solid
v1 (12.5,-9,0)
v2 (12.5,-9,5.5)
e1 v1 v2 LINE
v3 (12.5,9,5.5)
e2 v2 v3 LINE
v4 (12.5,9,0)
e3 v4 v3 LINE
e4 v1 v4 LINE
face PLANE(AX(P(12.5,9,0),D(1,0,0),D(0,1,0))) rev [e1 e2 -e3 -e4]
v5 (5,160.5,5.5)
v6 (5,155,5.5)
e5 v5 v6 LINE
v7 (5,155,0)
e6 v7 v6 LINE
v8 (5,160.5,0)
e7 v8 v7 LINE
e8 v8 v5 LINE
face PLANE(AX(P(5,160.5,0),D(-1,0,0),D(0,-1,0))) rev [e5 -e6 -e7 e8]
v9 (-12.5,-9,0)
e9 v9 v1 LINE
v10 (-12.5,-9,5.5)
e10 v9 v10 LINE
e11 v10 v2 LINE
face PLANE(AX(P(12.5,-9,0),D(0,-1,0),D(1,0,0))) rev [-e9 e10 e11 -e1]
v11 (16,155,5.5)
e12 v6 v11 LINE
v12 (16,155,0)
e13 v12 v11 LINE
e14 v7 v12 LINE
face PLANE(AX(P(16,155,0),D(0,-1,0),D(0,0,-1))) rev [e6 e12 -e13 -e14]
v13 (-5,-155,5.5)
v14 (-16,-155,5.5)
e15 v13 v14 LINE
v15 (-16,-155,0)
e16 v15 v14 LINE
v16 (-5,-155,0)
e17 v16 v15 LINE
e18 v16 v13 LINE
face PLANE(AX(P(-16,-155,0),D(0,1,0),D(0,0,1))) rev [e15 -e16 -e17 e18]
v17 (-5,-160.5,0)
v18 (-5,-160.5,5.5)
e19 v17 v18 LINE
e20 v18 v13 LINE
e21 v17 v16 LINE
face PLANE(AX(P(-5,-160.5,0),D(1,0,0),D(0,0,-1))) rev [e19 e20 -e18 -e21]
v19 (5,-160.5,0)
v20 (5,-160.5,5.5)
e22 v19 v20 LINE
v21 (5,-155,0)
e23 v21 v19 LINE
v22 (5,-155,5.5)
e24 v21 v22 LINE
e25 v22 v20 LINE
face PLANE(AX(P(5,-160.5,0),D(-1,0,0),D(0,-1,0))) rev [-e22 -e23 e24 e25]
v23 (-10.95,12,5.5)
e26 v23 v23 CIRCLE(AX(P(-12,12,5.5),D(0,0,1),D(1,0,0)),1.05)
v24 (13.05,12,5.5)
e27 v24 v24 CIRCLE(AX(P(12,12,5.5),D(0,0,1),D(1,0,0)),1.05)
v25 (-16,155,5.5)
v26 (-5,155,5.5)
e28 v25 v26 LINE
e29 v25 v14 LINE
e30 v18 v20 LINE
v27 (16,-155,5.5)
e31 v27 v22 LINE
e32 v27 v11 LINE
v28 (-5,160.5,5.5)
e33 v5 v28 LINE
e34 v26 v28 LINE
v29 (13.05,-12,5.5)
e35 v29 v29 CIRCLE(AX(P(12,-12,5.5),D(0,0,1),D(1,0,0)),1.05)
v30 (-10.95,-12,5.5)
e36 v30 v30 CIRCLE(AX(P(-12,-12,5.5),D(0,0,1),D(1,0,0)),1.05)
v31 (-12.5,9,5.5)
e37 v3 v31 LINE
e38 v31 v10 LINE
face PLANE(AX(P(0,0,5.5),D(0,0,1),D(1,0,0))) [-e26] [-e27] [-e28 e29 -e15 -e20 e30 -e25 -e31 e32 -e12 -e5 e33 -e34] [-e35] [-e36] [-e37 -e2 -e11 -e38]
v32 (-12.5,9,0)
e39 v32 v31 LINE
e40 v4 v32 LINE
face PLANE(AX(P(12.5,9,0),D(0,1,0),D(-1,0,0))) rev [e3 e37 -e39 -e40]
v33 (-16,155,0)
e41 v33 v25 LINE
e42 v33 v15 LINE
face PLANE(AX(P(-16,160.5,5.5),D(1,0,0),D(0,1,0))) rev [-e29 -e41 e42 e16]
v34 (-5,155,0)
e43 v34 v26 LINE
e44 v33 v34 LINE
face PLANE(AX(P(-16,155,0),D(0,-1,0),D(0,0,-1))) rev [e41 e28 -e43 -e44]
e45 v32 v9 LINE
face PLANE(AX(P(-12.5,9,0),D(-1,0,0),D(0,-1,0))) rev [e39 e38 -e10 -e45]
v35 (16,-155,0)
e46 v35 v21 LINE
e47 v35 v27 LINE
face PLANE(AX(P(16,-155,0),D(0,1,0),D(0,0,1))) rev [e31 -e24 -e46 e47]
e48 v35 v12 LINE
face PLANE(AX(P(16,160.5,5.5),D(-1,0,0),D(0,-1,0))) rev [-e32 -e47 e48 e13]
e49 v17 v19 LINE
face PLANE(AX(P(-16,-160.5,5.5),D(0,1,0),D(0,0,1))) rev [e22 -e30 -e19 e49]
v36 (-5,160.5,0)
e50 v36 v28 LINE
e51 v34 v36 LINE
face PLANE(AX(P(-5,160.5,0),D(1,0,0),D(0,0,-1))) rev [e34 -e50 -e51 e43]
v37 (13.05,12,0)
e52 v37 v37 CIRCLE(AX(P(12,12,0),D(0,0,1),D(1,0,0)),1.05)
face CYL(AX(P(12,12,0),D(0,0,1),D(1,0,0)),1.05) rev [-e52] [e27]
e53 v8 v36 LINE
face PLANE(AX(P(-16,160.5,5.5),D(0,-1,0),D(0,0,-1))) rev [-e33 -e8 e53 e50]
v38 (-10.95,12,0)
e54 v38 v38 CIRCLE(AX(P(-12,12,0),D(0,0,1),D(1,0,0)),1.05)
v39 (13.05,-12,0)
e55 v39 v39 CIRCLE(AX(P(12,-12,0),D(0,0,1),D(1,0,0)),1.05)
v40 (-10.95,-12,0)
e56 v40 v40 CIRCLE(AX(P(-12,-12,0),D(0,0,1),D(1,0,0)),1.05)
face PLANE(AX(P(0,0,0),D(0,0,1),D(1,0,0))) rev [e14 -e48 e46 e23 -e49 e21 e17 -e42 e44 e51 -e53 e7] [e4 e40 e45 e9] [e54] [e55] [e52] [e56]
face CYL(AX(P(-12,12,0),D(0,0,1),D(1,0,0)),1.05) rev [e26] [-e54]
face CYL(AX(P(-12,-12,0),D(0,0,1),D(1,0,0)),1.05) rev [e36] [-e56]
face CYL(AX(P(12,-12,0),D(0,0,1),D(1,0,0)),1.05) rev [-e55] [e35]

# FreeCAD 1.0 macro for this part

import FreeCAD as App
import Part
import Sketcher

V = App.Vector

doc = App.newDocument("Part")
body = doc.addObject("PartDesign::Body", "Body")

sketch1 = body.newObject("Sketcher::SketchObject", "Sketch")
sketch1.AttachmentSupport = (doc.getObject("XY_Plane"), [""])
sketch1.MapMode = "FlatFace"
sketch1.addGeometry([
    Part.LineSegment(V(-16, 160.5, 0), V(-16, -160.5, 0)),
    Part.LineSegment(V(-16, -160.5, 0), V(16, -160.5, 0)),
    Part.LineSegment(V(16, -160.5, 0), V(16, 160.5, 0)),
    Part.LineSegment(V(16, 160.5, 0), V(-16, 160.5, 0)),
], False)
sketch1.addConstraint([
    Sketcher.Constraint("Coincident", 0, 2, 1, 1),
    Sketcher.Constraint("Coincident", 1, 2, 2, 1),
    Sketcher.Constraint("Coincident", 2, 2, 3, 1),
    Sketcher.Constraint("Coincident", 3, 2, 0, 1),
    Sketcher.Constraint("Vertical", 0),
    Sketcher.Constraint("Horizontal", 1),
    Sketcher.Constraint("Vertical", 2),
    Sketcher.Constraint("Horizontal", 3),
    Sketcher.Constraint("Symmetric", 0, 2, 2, 2, -1, 1),
    Sketcher.Constraint("DistanceX", 1, 1, 1, 2, 32.0),
    Sketcher.Constraint("DistanceY", 0, 2, 0, 1, 321.0),
])
pad1 = body.newObject("PartDesign::Pad", "Pad")
pad1.Profile = sketch1
pad1.Length = 5.5

sketch2 = body.newObject("Sketcher::SketchObject", "Sketch001")
sketch2.AttachmentSupport = (doc.getObject("XY_Plane"), [""])
sketch2.MapMode = "FlatFace"
sketch2.AttachmentOffset = App.Placement(V(0, 0, 5.5), App.Rotation())
sketch2.addGeometry([
    Part.Circle(V(12, 12, 0), V(0, 0, 1), 1.05),
    Part.Circle(V(12, -12, 0), V(0, 0, 1), 1.05),
    Part.Circle(V(-12, 12, 0), V(0, 0, 1), 1.05),
    Part.Circle(V(-12, -12, 0), V(0, 0, 1), 1.05),
    Part.LineSegment(V(-12.5, 9, 0), V(-12.5, -9, 0)),
    Part.LineSegment(V(-12.5, -9, 0), V(12.5, -9, 0)),
    Part.LineSegment(V(12.5, -9, 0), V(12.5, 9, 0)),
    Part.LineSegment(V(12.5, 9, 0), V(-12.5, 9, 0)),
], False)
sketch2.addConstraint([
    Sketcher.Constraint("Coincident", 4, 2, 5, 1),
    Sketcher.Constraint("Coincident", 5, 2, 6, 1),
    Sketcher.Constraint("Coincident", 6, 2, 7, 1),
    Sketcher.Constraint("Coincident", 7, 2, 4, 1),
    Sketcher.Constraint("Vertical", 4),
    Sketcher.Constraint("Horizontal", 5),
    Sketcher.Constraint("Vertical", 6),
    Sketcher.Constraint("Horizontal", 7),
    Sketcher.Constraint("Equal", 0, 1),
    Sketcher.Constraint("Equal", 1, 2),
    Sketcher.Constraint("Equal", 2, 3),
    Sketcher.Constraint("Symmetric", 1, 3, 2, 3, -1, 1),
    Sketcher.Constraint("Symmetric", 0, 3, 3, 3, -1, 1),
    Sketcher.Constraint("Symmetric", 4, 2, 6, 2, -1, 1),
    Sketcher.Constraint("Symmetric", 0, 3, 2, 3, -2),
    Sketcher.Constraint("Diameter", 0, 2.1),
    Sketcher.Constraint("DistanceX", 5, 1, 5, 2, 25.0),
    Sketcher.Constraint("DistanceY", 4, 2, 4, 1, 18.0),
    Sketcher.Constraint("DistanceX", -1, 1, 0, 3, 12.0),
    Sketcher.Constraint("DistanceY", -1, 1, 0, 3, 12.0),
])
pocket1 = body.newObject("PartDesign::Pocket", "Pocket")
pocket1.Profile = sketch2
pocket1.Type = "ThroughAll"

sketch3 = body.newObject("Sketcher::SketchObject", "Sketch002")
sketch3.AttachmentSupport = (doc.getObject("XY_Plane"), [""])
sketch3.MapMode = "FlatFace"
sketch3.AttachmentOffset = App.Placement(V(0, 0, 5.5), App.Rotation())
sketch3.addGeometry([
    Part.LineSegment(V(-16, 160.5, 0), V(-16, 155, 0)),
    Part.LineSegment(V(-16, 155, 0), V(-5, 155, 0)),
    Part.LineSegment(V(-5, 155, 0), V(-5, 160.5, 0)),
    Part.LineSegment(V(-5, 160.5, 0), V(-16, 160.5, 0)),
    Part.LineSegment(V(5, 160.5, 0), V(5, 155, 0)),
    Part.LineSegment(V(5, 155, 0), V(16, 155, 0)),
    Part.LineSegment(V(16, 155, 0), V(16, 160.5, 0)),
    Part.LineSegment(V(16, 160.5, 0), V(5, 160.5, 0)),
    Part.LineSegment(V(5, -155, 0), V(5, -160.5, 0)),
    Part.LineSegment(V(5, -160.5, 0), V(16, -160.5, 0)),
    Part.LineSegment(V(16, -160.5, 0), V(16, -155, 0)),
    Part.LineSegment(V(16, -155, 0), V(5, -155, 0)),
    Part.LineSegment(V(-16, -155, 0), V(-16, -160.5, 0)),
    Part.LineSegment(V(-16, -160.5, 0), V(-5, -160.5, 0)),
    Part.LineSegment(V(-5, -160.5, 0), V(-5, -155, 0)),
    Part.LineSegment(V(-5, -155, 0), V(-16, -155, 0)),
], False)
sketch3.addConstraint([
    Sketcher.Constraint("Coincident", 0, 2, 1, 1),
    Sketcher.Constraint("Coincident", 1, 2, 2, 1),
    Sketcher.Constraint("Coincident", 2, 2, 3, 1),
    Sketcher.Constraint("Coincident", 3, 2, 0, 1),
    Sketcher.Constraint("Coincident", 4, 2, 5, 1),
    Sketcher.Constraint("Coincident", 5, 2, 6, 1),
    Sketcher.Constraint("Coincident", 6, 2, 7, 1),
    Sketcher.Constraint("Coincident", 7, 2, 4, 1),
    Sketcher.Constraint("Coincident", 8, 2, 9, 1),
    Sketcher.Constraint("Coincident", 9, 2, 10, 1),
    Sketcher.Constraint("Coincident", 10, 2, 11, 1),
    Sketcher.Constraint("Coincident", 11, 2, 8, 1),
    Sketcher.Constraint("Coincident", 12, 2, 13, 1),
    Sketcher.Constraint("Coincident", 13, 2, 14, 1),
    Sketcher.Constraint("Coincident", 14, 2, 15, 1),
    Sketcher.Constraint("Coincident", 15, 2, 12, 1),
    Sketcher.Constraint("Vertical", 0),
    Sketcher.Constraint("Horizontal", 1),
    Sketcher.Constraint("Vertical", 2),
    Sketcher.Constraint("Horizontal", 3),
    Sketcher.Constraint("Vertical", 4),
    Sketcher.Constraint("Horizontal", 5),
    Sketcher.Constraint("Vertical", 6),
    Sketcher.Constraint("Horizontal", 7),
    Sketcher.Constraint("Vertical", 8),
    Sketcher.Constraint("Horizontal", 9),
    Sketcher.Constraint("Vertical", 10),
    Sketcher.Constraint("Horizontal", 11),
    Sketcher.Constraint("Vertical", 12),
    Sketcher.Constraint("Horizontal", 13),
    Sketcher.Constraint("Vertical", 14),
    Sketcher.Constraint("Horizontal", 15),
    Sketcher.Constraint("Symmetric", 2, 2, 8, 2, -1, 1),
    Sketcher.Constraint("Symmetric", 0, 2, 10, 2, -1, 1),
    Sketcher.Constraint("Symmetric", 6, 2, 12, 2, -1, 1),
    Sketcher.Constraint("Symmetric", 4, 2, 14, 2, -1, 1),
    Sketcher.Constraint("Symmetric", 1, 2, 4, 2, -2),
    Sketcher.Constraint("Symmetric", 3, 2, 6, 2, -2),
    Sketcher.Constraint("DistanceX", 1, 1, 1, 2, 11.0),
    Sketcher.Constraint("DistanceY", 0, 2, 0, 1, 5.5),
    Sketcher.Constraint("DistanceX", 0, 2, -1, 1, 16.0),
    Sketcher.Constraint("DistanceY", -1, 1, 0, 2, 155.0),
])
pocket2 = body.newObject("PartDesign::Pocket", "Pocket001")
pocket2.Profile = sketch3
pocket2.Type = "ThroughAll"

doc.recompute()
